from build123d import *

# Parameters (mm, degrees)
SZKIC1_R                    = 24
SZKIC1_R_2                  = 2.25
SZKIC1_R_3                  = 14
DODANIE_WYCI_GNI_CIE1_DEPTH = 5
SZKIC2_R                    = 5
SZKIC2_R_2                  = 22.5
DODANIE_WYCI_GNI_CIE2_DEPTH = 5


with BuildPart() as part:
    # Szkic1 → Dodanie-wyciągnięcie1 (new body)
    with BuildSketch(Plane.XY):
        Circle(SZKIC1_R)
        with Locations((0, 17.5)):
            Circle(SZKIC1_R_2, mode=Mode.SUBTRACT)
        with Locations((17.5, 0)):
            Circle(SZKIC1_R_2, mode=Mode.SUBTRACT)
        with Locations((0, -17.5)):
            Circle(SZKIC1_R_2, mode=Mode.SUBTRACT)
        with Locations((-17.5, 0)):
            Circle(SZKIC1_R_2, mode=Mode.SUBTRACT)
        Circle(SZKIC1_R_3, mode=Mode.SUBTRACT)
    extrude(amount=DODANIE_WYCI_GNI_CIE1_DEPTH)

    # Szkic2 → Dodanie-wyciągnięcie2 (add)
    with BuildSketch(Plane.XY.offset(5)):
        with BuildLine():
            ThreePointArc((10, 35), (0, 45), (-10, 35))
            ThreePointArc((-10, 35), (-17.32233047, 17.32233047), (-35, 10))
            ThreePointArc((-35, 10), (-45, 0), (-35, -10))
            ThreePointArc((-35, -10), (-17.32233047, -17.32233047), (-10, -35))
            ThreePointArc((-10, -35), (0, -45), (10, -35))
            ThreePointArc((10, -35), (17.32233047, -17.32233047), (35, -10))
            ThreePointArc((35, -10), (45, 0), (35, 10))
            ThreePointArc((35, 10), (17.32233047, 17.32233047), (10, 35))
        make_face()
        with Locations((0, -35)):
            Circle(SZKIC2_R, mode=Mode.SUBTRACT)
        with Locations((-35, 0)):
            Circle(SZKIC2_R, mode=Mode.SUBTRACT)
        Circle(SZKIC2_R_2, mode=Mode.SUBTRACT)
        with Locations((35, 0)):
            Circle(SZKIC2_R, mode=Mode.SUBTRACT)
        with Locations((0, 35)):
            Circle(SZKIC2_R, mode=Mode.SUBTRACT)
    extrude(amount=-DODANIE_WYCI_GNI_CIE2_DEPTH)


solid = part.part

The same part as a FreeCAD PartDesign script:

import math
import FreeCAD as App
import Part
import Sketcher

doc = App.newDocument("Part")
body = doc.addObject("PartDesign::Body", "Body")

sketch1 = body.newObject("Sketcher::SketchObject", "Sketch")
sketch1.AttachmentSupport = (doc.getObject("XY_Plane"), [""])
sketch1.MapMode = "FlatFace"
sketch1.addGeometry(Part.Circle(App.Vector(0, 0, 0), App.Vector(0, 0, 1), 24), False)
sketch1.addGeometry(Part.Circle(App.Vector(0, -17.5, 0), App.Vector(0, 0, 1), 2.2), False)
sketch1.addGeometry(Part.Circle(App.Vector(-17.5, 0, 0), App.Vector(0, 0, 1), 2.2), False)
sketch1.addGeometry(Part.Circle(App.Vector(0, 0, 0), App.Vector(0, 0, 1), 14), False)
sketch1.addGeometry(Part.Circle(App.Vector(17.5, 0, 0), App.Vector(0, 0, 1), 2.2), False)
sketch1.addGeometry(Part.Circle(App.Vector(0, 17.5, 0), App.Vector(0, 0, 1), 2.2), False)
sketch1.addConstraint(Sketcher.Constraint("Coincident", 0, 3, -1, 1))
sketch1.addConstraint(Sketcher.Constraint("Coincident", 3, 3, -1, 1))
sketch1.addConstraint(Sketcher.Constraint("Equal", 1, 2))
sketch1.addConstraint(Sketcher.Constraint("Equal", 2, 4))
sketch1.addConstraint(Sketcher.Constraint("Equal", 4, 5))
sketch1.addConstraint(Sketcher.Constraint("Symmetric", 2, 3, 4, 3, -1, 1))
sketch1.addConstraint(Sketcher.Constraint("Symmetric", 1, 3, 5, 3, -1, 1))
sketch1.addConstraint(Sketcher.Constraint("PointOnObject", 1, 3, -2))
sketch1.addConstraint(Sketcher.Constraint("PointOnObject", 2, 3, -1))
sketch1.addConstraint(Sketcher.Constraint("Diameter", 0, 48.0))
sketch1.addConstraint(Sketcher.Constraint("Diameter", 3, 28.0))
sketch1.addConstraint(Sketcher.Constraint("Diameter", 1, 4.5))
sketch1.addConstraint(Sketcher.Constraint("DistanceX", 2, 3, 4, 3, 35.0))
sketch1.addConstraint(Sketcher.Constraint("DistanceY", 1, 3, 5, 3, 35.0))
pad1 = body.newObject("PartDesign::Pad", "Pad")
pad1.Profile = sketch1
pad1.Length = 5

sketch2 = body.newObject("Sketcher::SketchObject", "Sketch001")
sketch2.AttachmentSupport = (doc.getObject("XY_Plane"), [""])
sketch2.MapMode = "FlatFace"
sketch2.AttachmentOffset = App.Placement(App.Vector(0, 0, 5), App.Rotation())
sketch2.addGeometry(Part.ArcOfCircle(Part.Circle(App.Vector(0, 35, 0), App.Vector(0, 0, 1), 10), math.radians(0), math.radians(180)), False)
sketch2.addGeometry(Part.ArcOfCircle(Part.Circle(App.Vector(-35, 35, 0), App.Vector(0, 0, 1), 25), math.radians(-90), math.radians(0)), False)
sketch2.addGeometry(Part.ArcOfCircle(Part.Circle(App.Vector(-35, 0, 0), App.Vector(0, 0, 1), 10), math.radians(90), math.radians(270)), False)
sketch2.addGeometry(Part.ArcOfCircle(Part.Circle(App.Vector(-35, -35, 0), App.Vector(0, 0, 1), 25), math.radians(0), math.radians(90)), False)
sketch2.addGeometry(Part.ArcOfCircle(Part.Circle(App.Vector(0, -35, 0), App.Vector(0, 0, 1), 10), math.radians(180), math.radians(360)), False)
sketch2.addGeometry(Part.ArcOfCircle(Part.Circle(App.Vector(35, -35, 0), App.Vector(0, 0, 1), 25), math.radians(90), math.radians(180)), False)
sketch2.addGeometry(Part.ArcOfCircle(Part.Circle(App.Vector(35, 0, 0), App.Vector(0, 0, 1), 10), math.radians(-90), math.radians(90)), False)
sketch2.addGeometry(Part.ArcOfCircle(Part.Circle(App.Vector(35, 35, 0), App.Vector(0, 0, 1), 25), math.radians(180), math.radians(270)), False)
sketch2.addGeometry(Part.Circle(App.Vector(0, -35, 0), App.Vector(0, 0, 1), 5), False)
sketch2.addGeometry(Part.Circle(App.Vector(-35, 0, 0), App.Vector(0, 0, 1), 5), False)
sketch2.addGeometry(Part.Circle(App.Vector(0, 0, 0), App.Vector(0, 0, 1), 22), False)
sketch2.addGeometry(Part.Circle(App.Vector(35, 0, 0), App.Vector(0, 0, 1), 5), False)
sketch2.addGeometry(Part.Circle(App.Vector(0, 35, 0), App.Vector(0, 0, 1), 5), False)
sketch2.addConstraint(Sketcher.Constraint("Tangent", 0, 2, 1, 2))
sketch2.addConstraint(Sketcher.Constraint("Tangent", 1, 1, 2, 1))
sketch2.addConstraint(Sketcher.Constraint("Tangent", 2, 2, 3, 2))
sketch2.addConstraint(Sketcher.Constraint("Tangent", 3, 1, 4, 1))
sketch2.addConstraint(Sketcher.Constraint("Tangent", 4, 2, 5, 2))
sketch2.addConstraint(Sketcher.Constraint("Tangent", 5, 1, 6, 1))
sketch2.addConstraint(Sketcher.Constraint("Tangent", 6, 2, 7, 2))
sketch2.addConstraint(Sketcher.Constraint("Tangent", 7, 1, 0, 1))
sketch2.addConstraint(Sketcher.Constraint("Coincident", 10, 3, -1, 1))
sketch2.addConstraint(Sketcher.Constraint("Coincident", 8, 3, 4, 3))
sketch2.addConstraint(Sketcher.Constraint("Coincident", 9, 3, 2, 3))
sketch2.addConstraint(Sketcher.Constraint("Coincident", 11, 3, 6, 3))
sketch2.addConstraint(Sketcher.Constraint("Coincident", 12, 3, 0, 3))
sketch2.addConstraint(Sketcher.Constraint("Equal", 0, 2))
sketch2.addConstraint(Sketcher.Constraint("Equal", 1, 3))
sketch2.addConstraint(Sketcher.Constraint("Equal", 2, 4))
sketch2.addConstraint(Sketcher.Constraint("Equal", 3, 5))
sketch2.addConstraint(Sketcher.Constraint("Equal", 4, 6))
sketch2.addConstraint(Sketcher.Constraint("Equal", 5, 7))
sketch2.addConstraint(Sketcher.Constraint("Equal", 8, 9))
sketch2.addConstraint(Sketcher.Constraint("Equal", 9, 11))
sketch2.addConstraint(Sketcher.Constraint("Equal", 11, 12))
sketch2.addConstraint(Sketcher.Constraint("Symmetric", 0, 3, 4, 3, -1, 1))
sketch2.addConstraint(Sketcher.Constraint("Symmetric", 2, 3, 6, 3, -1, 1))
sketch2.addConstraint(Sketcher.Constraint("Symmetric", 3, 3, 5, 3, -2))
sketch2.addConstraint(Sketcher.Constraint("Horizontal", 0, 3, 1, 3))
sketch2.addConstraint(Sketcher.Constraint("Vertical", 1, 3, 2, 3))
sketch2.addConstraint(Sketcher.Constraint("Diameter", 8, 10.0))
sketch2.addConstraint(Sketcher.Constraint("Diameter", 10, 45.0))
sketch2.addConstraint(Sketcher.Constraint("Radius", 0, 10.0))
sketch2.addConstraint(Sketcher.Constraint("Radius", 1, 25.0))
pad2 = body.newObject("PartDesign::Pad", "Pad001")
pad2.Profile = sketch2
pad2.Length = 5
pad2.Reversed = True

doc.recompute()
